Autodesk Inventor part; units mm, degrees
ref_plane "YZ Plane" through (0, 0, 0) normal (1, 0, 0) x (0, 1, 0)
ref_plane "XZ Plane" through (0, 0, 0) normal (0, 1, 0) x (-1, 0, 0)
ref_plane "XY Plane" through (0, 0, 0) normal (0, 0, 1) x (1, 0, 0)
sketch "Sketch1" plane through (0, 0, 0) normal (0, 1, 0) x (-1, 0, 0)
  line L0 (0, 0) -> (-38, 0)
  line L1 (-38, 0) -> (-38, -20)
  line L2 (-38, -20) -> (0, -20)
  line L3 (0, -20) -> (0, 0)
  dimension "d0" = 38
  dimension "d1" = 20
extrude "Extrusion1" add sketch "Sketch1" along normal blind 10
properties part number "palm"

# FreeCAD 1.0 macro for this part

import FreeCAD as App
import Part
import Sketcher

V = App.Vector

doc = App.newDocument("Part")
body = doc.addObject("PartDesign::Body", "Body")

sketch1 = doc.addObject("Sketcher::SketchObject", "Sketch")
body.addObject(sketch1)
sketch1.AttachmentSupport = (doc.XZ_Plane, [""])
sketch1.MapMode = "FlatFace"
sketch1.addGeometry(Part.LineSegment(V(0, -20, 0), V(0, 0, 0)), False)
sketch1.addGeometry(Part.LineSegment(V(0, 0, 0), V(38, 0, 0)), False)
sketch1.addGeometry(Part.LineSegment(V(38, 0, 0), V(38, -20, 0)), False)
sketch1.addGeometry(Part.LineSegment(V(38, -20, 0), V(0, -20, 0)), False)
sketch1.addConstraint(Sketcher.Constraint("Coincident", 0, 2, 1, 1))
sketch1.addConstraint(Sketcher.Constraint("Coincident", 1, 2, 2, 1))
sketch1.addConstraint(Sketcher.Constraint("Coincident", 2, 2, 3, 1))
sketch1.addConstraint(Sketcher.Constraint("Coincident", 3, 2, 0, 1))
sketch1.addConstraint(Sketcher.Constraint("Vertical", 0))
sketch1.addConstraint(Sketcher.Constraint("Horizontal", 1))
sketch1.addConstraint(Sketcher.Constraint("Vertical", 2))
sketch1.addConstraint(Sketcher.Constraint("Horizontal", 3))
sketch1.addConstraint(Sketcher.Constraint("Coincident", 0, 2, -1, 1))
sketch1.addConstraint(Sketcher.Constraint("DistanceX", 1, 1, 1, 2, 38.0))
sketch1.addConstraint(Sketcher.Constraint("DistanceY", 0, 1, 0, 2, 20.0))
pad1 = doc.addObject("PartDesign::Pad", "Pad")
body.addObject(pad1)
pad1.Profile = sketch1
pad1.Length = 10
pad1.Reversed = True

doc.recompute()
